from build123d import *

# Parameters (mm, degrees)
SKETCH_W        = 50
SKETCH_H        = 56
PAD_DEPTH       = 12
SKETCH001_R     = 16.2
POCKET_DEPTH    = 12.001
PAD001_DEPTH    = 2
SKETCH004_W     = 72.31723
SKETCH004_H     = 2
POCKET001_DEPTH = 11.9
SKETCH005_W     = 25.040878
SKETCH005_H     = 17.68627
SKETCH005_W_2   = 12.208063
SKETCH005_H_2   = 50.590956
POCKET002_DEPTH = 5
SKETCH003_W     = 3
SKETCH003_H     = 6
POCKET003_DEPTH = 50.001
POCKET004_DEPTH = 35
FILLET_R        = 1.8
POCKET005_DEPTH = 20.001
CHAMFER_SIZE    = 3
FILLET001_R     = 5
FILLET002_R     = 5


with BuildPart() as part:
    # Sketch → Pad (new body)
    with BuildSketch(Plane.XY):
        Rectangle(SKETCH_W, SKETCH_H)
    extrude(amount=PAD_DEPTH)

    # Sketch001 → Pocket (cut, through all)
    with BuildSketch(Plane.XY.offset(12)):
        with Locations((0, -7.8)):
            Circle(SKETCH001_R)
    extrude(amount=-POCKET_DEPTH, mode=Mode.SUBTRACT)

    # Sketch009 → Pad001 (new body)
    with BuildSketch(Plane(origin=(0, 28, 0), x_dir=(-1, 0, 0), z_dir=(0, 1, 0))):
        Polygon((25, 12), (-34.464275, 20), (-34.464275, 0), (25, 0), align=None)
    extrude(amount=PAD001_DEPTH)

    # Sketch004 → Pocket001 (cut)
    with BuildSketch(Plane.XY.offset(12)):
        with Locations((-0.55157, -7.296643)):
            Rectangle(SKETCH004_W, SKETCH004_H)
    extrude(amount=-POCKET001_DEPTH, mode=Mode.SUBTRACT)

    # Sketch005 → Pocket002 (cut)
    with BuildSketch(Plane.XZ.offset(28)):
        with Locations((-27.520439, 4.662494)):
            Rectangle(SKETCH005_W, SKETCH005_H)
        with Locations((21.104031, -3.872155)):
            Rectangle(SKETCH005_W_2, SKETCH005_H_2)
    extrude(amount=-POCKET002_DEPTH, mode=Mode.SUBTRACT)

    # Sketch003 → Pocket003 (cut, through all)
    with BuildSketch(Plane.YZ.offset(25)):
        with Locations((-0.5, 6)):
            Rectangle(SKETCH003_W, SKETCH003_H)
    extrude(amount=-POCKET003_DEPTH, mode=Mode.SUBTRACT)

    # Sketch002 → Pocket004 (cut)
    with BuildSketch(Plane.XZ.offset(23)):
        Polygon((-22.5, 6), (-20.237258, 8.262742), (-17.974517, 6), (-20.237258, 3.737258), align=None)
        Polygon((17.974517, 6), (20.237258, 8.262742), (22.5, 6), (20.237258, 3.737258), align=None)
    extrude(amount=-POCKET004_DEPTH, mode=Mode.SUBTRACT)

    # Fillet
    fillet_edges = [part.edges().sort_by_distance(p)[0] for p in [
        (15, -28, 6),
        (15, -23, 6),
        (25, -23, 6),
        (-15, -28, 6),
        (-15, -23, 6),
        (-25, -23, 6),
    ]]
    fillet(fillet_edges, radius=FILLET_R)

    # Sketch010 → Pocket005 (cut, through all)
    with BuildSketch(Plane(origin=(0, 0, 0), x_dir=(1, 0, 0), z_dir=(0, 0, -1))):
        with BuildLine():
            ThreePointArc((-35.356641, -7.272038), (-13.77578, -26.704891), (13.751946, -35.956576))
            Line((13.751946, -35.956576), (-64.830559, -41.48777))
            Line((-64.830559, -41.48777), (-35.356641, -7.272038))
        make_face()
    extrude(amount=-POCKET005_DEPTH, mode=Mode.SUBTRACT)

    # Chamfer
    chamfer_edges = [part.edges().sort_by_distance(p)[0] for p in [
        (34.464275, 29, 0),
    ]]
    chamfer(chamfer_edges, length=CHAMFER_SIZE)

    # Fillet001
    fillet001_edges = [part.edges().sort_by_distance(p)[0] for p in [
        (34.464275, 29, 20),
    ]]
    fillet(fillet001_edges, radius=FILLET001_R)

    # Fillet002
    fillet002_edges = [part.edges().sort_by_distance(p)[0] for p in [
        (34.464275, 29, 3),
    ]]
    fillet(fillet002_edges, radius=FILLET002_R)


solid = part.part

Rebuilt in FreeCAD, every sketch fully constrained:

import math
import FreeCAD as App
import Part
import Sketcher


def edges_at(feature, points):
    """Names of the edges that pass closest to the given points."""
    edges = feature.Shape.Edges
    near = lambda p: min(range(len(edges)), key=lambda i: edges[i].distToShape(Part.Vertex(*p))[0])
    return sorted({f"Edge{near(p) + 1}" for p in points})

doc = App.newDocument("Part")
body = doc.addObject("PartDesign::Body", "Body")

sketch1 = doc.addObject("Sketcher::SketchObject", "Sketch")
body.addObject(sketch1)
sketch1.AttachmentSupport = (doc.XY_Plane, [""])
sketch1.MapMode = "FlatFace"
sketch1.addGeometry([
    Part.LineSegment(App.Vector(-25, 28, 0), App.Vector(-25, -28, 0)),
    Part.LineSegment(App.Vector(-25, -28, 0), App.Vector(25, -28, 0)),
    Part.LineSegment(App.Vector(25, -28, 0), App.Vector(25, 28, 0)),
    Part.LineSegment(App.Vector(25, 28, 0), App.Vector(-25, 28, 0)),
], False)
sketch1.addConstraint([
    Sketcher.Constraint("Coincident", 0, 2, 1, 1),
    Sketcher.Constraint("Coincident", 1, 2, 2, 1),
    Sketcher.Constraint("Coincident", 2, 2, 3, 1),
    Sketcher.Constraint("Coincident", 3, 2, 0, 1),
    Sketcher.Constraint("Vertical", 0),
    Sketcher.Constraint("Horizontal", 1),
    Sketcher.Constraint("Vertical", 2),
    Sketcher.Constraint("Horizontal", 3),
    Sketcher.Constraint("Symmetric", 0, 2, 2, 2, -1, 1),
    Sketcher.Constraint("DistanceX", 1, 1, 1, 2, 50.0),
    Sketcher.Constraint("DistanceY", 0, 2, 0, 1, 56.0),
])
pad1 = doc.addObject("PartDesign::Pad", "Pad")
body.addObject(pad1)
pad1.Profile = sketch1
pad1.Length = 12

sketch2 = doc.addObject("Sketcher::SketchObject", "Sketch001")
body.addObject(sketch2)
sketch2.AttachmentSupport = (doc.XY_Plane, [""])
sketch2.MapMode = "FlatFace"
sketch2.AttachmentOffset = App.Placement(App.Vector(0, 0, 12), App.Rotation())
sketch2.addGeometry(Part.Circle(App.Vector(0, -8, 0), App.Vector(0, 0, 1), 16), False)
sketch2.addConstraint([
    Sketcher.Constraint("PointOnObject", 0, 3, -2),
    Sketcher.Constraint("Diameter", 0, 32.4),
    Sketcher.Constraint("DistanceY", 0, 3, -1, 1, 7.8),
])
pocket1 = doc.addObject("PartDesign::Pocket", "Pocket")
body.addObject(pocket1)
pocket1.Profile = sketch2
pocket1.Type = "ThroughAll"

sketch3 = doc.addObject("Sketcher::SketchObject", "Sketch002")
body.addObject(sketch3)
sketch3.AttachmentSupport = (doc.XZ_Plane, [""])
sketch3.MapMode = "FlatFace"
sketch3.AttachmentOffset = App.Placement(App.Vector(0, 0, -28), App.Rotation())
sketch3.addGeometry([
    Part.LineSegment(App.Vector(-25, 12, 0), App.Vector(34, 20, 0)),
    Part.LineSegment(App.Vector(34, 20, 0), App.Vector(34, 0, 0)),
    Part.LineSegment(App.Vector(34, 0, 0), App.Vector(-25, 0, 0)),
    Part.LineSegment(App.Vector(-25, 0, 0), App.Vector(-25, 12, 0)),
], False)
sketch3.addConstraint([
    Sketcher.Constraint("Coincident", 0, 2, 1, 1),
    Sketcher.Constraint("Coincident", 1, 2, 2, 1),
    Sketcher.Constraint("Coincident", 2, 2, 3, 1),
    Sketcher.Constraint("Coincident", 3, 2, 0, 1),
    Sketcher.Constraint("Vertical", 1),
    Sketcher.Constraint("Horizontal", 2),
    Sketcher.Constraint("Vertical", 3),
    Sketcher.Constraint("PointOnObject", 1, 2, -1),
    Sketcher.Constraint("DistanceY", 1, 2, 1, 1, 20.0),
    Sketcher.Constraint("DistanceY", 3, 1, 3, 2, 12.0),
    Sketcher.Constraint("Distance", 0, 60.0),
    Sketcher.Constraint("DistanceX", 2, 2, -1, 1, 25.0),
])
pad2 = doc.addObject("PartDesign::Pad", "Pad001")
body.addObject(pad2)
pad2.Profile = sketch3
pad2.Length = 2
pad2.Reversed = True

sketch4 = doc.addObject("Sketcher::SketchObject", "Sketch003")
body.addObject(sketch4)
sketch4.AttachmentSupport = (doc.XY_Plane, [""])
sketch4.MapMode = "FlatFace"
sketch4.AttachmentOffset = App.Placement(App.Vector(0, 0, 12), App.Rotation())
sketch4.addGeometry([
    Part.LineSegment(App.Vector(-36.7, -6.3, 0), App.Vector(-36.7, -8.3, 0)),
    Part.LineSegment(App.Vector(-36.7, -8.3, 0), App.Vector(35.6, -8.3, 0)),
    Part.LineSegment(App.Vector(35.6, -8.3, 0), App.Vector(35.6, -6.3, 0)),
    Part.LineSegment(App.Vector(35.6, -6.3, 0), App.Vector(-36.7, -6.3, 0)),
], False)
sketch4.addConstraint([
    Sketcher.Constraint("Coincident", 0, 2, 1, 1),
    Sketcher.Constraint("Coincident", 1, 2, 2, 1),
    Sketcher.Constraint("Coincident", 2, 2, 3, 1),
    Sketcher.Constraint("Coincident", 3, 2, 0, 1),
    Sketcher.Constraint("Vertical", 0),
    Sketcher.Constraint("Horizontal", 1),
    Sketcher.Constraint("Vertical", 2),
    Sketcher.Constraint("Horizontal", 3),
    Sketcher.Constraint("DistanceY", 0, 2, 0, 1, 2.0),
    Sketcher.Constraint("DistanceX", 1, 1, 1, 2, 72.31723),
    Sketcher.Constraint("DistanceX", 0, 2, -1, 1, 36.710185),
    Sketcher.Constraint("DistanceY", 0, 2, -1, 1, 8.296643),
])
pocket2 = doc.addObject("PartDesign::Pocket", "Pocket001")
body.addObject(pocket2)
pocket2.Profile = sketch4
pocket2.Length = 11.9

sketch5 = doc.addObject("Sketcher::SketchObject", "Sketch004")
body.addObject(sketch5)
sketch5.AttachmentSupport = (doc.XZ_Plane, [""])
sketch5.MapMode = "FlatFace"
sketch5.AttachmentOffset = App.Placement(App.Vector(0, 0, 28), App.Rotation())
sketch5.addGeometry([
    Part.LineSegment(App.Vector(-40, 14, 0), App.Vector(-40, -4, 0)),
    Part.LineSegment(App.Vector(-40, -4, 0), App.Vector(-15, -4, 0)),
    Part.LineSegment(App.Vector(-15, -4, 0), App.Vector(-15, 14, 0)),
    Part.LineSegment(App.Vector(-15, 14, 0), App.Vector(-40, 14, 0)),
    Part.LineSegment(App.Vector(15, 21, 0), App.Vector(15, -29, 0)),
    Part.LineSegment(App.Vector(15, -29, 0), App.Vector(27, -29, 0)),
    Part.LineSegment(App.Vector(27, -29, 0), App.Vector(27, 21, 0)),
    Part.LineSegment(App.Vector(27, 21, 0), App.Vector(15, 21, 0)),
], False)
sketch5.addConstraint([
    Sketcher.Constraint("Coincident", 0, 2, 1, 1),
    Sketcher.Constraint("Coincident", 1, 2, 2, 1),
    Sketcher.Constraint("Coincident", 2, 2, 3, 1),
    Sketcher.Constraint("Coincident", 3, 2, 0, 1),
    Sketcher.Constraint("Coincident", 4, 2, 5, 1),
    Sketcher.Constraint("Coincident", 5, 2, 6, 1),
    Sketcher.Constraint("Coincident", 6, 2, 7, 1),
    Sketcher.Constraint("Coincident", 7, 2, 4, 1),
    Sketcher.Constraint("Vertical", 0),
    Sketcher.Constraint("Horizontal", 1),
    Sketcher.Constraint("Vertical", 2),
    Sketcher.Constraint("Horizontal", 3),
    Sketcher.Constraint("Vertical", 4),
    Sketcher.Constraint("Horizontal", 5),
    Sketcher.Constraint("Vertical", 6),
    Sketcher.Constraint("Horizontal", 7),
    Sketcher.Constraint("DistanceX", 1, 2, -1, 1, 15.0),
    Sketcher.Constraint("DistanceX", -1, 1, 4, 2, 14.999999),
    Sketcher.Constraint("DistanceY", 0, 2, 0, 1, 17.68627),
    Sketcher.Constraint("DistanceX", 1, 1, 1, 2, 25.040878),
    Sketcher.Constraint("DistanceX", 5, 1, 5, 2, 12.208063),
    Sketcher.Constraint("DistanceY", 4, 2, 4, 1, 50.590956),
    Sketcher.Constraint("DistanceY", 0, 2, -1, 1, 4.180641),
    Sketcher.Constraint("DistanceY", 4, 2, -1, 1, 29.167633),
])
pocket3 = doc.addObject("PartDesign::Pocket", "Pocket002")
body.addObject(pocket3)
pocket3.Profile = sketch5
pocket3.Length = 5

sketch6 = doc.addObject("Sketcher::SketchObject", "Sketch005")
body.addObject(sketch6)
sketch6.AttachmentSupport = (doc.YZ_Plane, [""])
sketch6.MapMode = "FlatFace"
sketch6.AttachmentOffset = App.Placement(App.Vector(0, 0, 25), App.Rotation())
sketch6.addGeometry([
    Part.LineSegment(App.Vector(-2, 9, 0), App.Vector(-2, 3, 0)),
    Part.LineSegment(App.Vector(-2, 3, 0), App.Vector(1, 3, 0)),
    Part.LineSegment(App.Vector(1, 3, 0), App.Vector(1, 9, 0)),
    Part.LineSegment(App.Vector(1, 9, 0), App.Vector(-2, 9, 0)),
], False)
sketch6.addConstraint([
    Sketcher.Constraint("Coincident", 0, 2, 1, 1),
    Sketcher.Constraint("Coincident", 1, 2, 2, 1),
    Sketcher.Constraint("Coincident", 2, 2, 3, 1),
    Sketcher.Constraint("Coincident", 3, 2, 0, 1),
    Sketcher.Constraint("Vertical", 0),
    Sketcher.Constraint("Horizontal", 1),
    Sketcher.Constraint("Vertical", 2),
    Sketcher.Constraint("Horizontal", 3),
    Sketcher.Constraint("DistanceX", 1, 1, 1, 2, 3.0),
    Sketcher.Constraint("DistanceY", 0, 2, 0, 1, 6.0),
    Sketcher.Constraint("DistanceX", 0, 2, -1, 1, 2.0),
    Sketcher.Constraint("DistanceY", -1, 1, 0, 2, 3.0),
])
pocket4 = doc.addObject("PartDesign::Pocket", "Pocket003")
body.addObject(pocket4)
pocket4.Profile = sketch6
pocket4.Type = "ThroughAll"

sketch7 = doc.addObject("Sketcher::SketchObject", "Sketch006")
body.addObject(sketch7)
sketch7.AttachmentSupport = (doc.XZ_Plane, [""])
sketch7.MapMode = "FlatFace"
sketch7.AttachmentOffset = App.Placement(App.Vector(0, 0, 23), App.Rotation())
sketch7.addGeometry([
    Part.LineSegment(App.Vector(-20.2, 8.3, 0), App.Vector(-22.5, 6, 0)),
    Part.LineSegment(App.Vector(-22.5, 6, 0), App.Vector(-20.2, 3.7, 0)),
    Part.LineSegment(App.Vector(-20.2, 3.7, 0), App.Vector(-18, 6, 0)),
    Part.LineSegment(App.Vector(-18, 6, 0), App.Vector(-20.2, 8.3, 0)),
    Part.LineSegment(App.Vector(20.2, 8.3, 0), App.Vector(18, 6, 0)),
    Part.LineSegment(App.Vector(18, 6, 0), App.Vector(20.2, 3.7, 0)),
    Part.LineSegment(App.Vector(20.2, 3.7, 0), App.Vector(22.5, 6, 0)),
    Part.LineSegment(App.Vector(22.5, 6, 0), App.Vector(20.2, 8.3, 0)),
], False)
sketch7.addConstraint([
    Sketcher.Constraint("Coincident", 0, 2, 1, 1),
    Sketcher.Constraint("Coincident", 1, 2, 2, 1),
    Sketcher.Constraint("Coincident", 2, 2, 3, 1),
    Sketcher.Constraint("Coincident", 3, 2, 0, 1),
    Sketcher.Constraint("Coincident", 4, 2, 5, 1),
    Sketcher.Constraint("Coincident", 5, 2, 6, 1),
    Sketcher.Constraint("Coincident", 6, 2, 7, 1),
    Sketcher.Constraint("Coincident", 7, 2, 4, 1),
    Sketcher.Constraint("Symmetric", 2, 2, 4, 2, -2),
    Sketcher.Constraint("Symmetric", 1, 2, 5, 2, -2),
    Sketcher.Constraint("Symmetric", 0, 2, 6, 2, -2),
    Sketcher.Constraint("Symmetric", 3, 2, 7, 2, -2),
    Sketcher.Constraint("Perpendicular", 0, 1),
    Sketcher.Constraint("Perpendicular", 1, 2),
    Sketcher.Constraint("Perpendicular", 2, 3),
    Sketcher.Constraint("Perpendicular", 3, 4),
    Sketcher.Constraint("Horizontal", 0, 2, 2, 2),
    Sketcher.Constraint("DistanceY", -1, 1, 0, 2, 6.0),
    Sketcher.Constraint("Distance", 0, 3.2),
    Sketcher.Constraint("DistanceX", 0, 2, -1, 1, 22.5),
])
pocket5 = doc.addObject("PartDesign::Pocket", "Pocket004")
body.addObject(pocket5)
pocket5.Profile = sketch7
pocket5.Length = 35
doc.recompute()

fillet = doc.addObject("PartDesign::Fillet", "Fillet")
body.addObject(fillet)
fillet.Base = (pocket5, edges_at(pocket5, [
    (15, -28, 6),
    (15, -23, 6),
    (25, -23, 6),
    (-15, -28, 6),
    (-15, -23, 6),
    (-25, -23, 6),
]))
fillet.Radius = 1.8

sketch8 = doc.addObject("Sketcher::SketchObject", "Sketch007")
body.addObject(sketch8)
sketch8.AttachmentSupport = (doc.XY_Plane, [""])
sketch8.MapMode = "FlatFace"
sketch8.addGeometry([
    Part.ArcOfCircle(Part.Circle(App.Vector(22, -35, 0), App.Vector(0, 0, 1), 72), math.radians(97), math.radians(144)),
    Part.LineSegment(App.Vector(-35, 7, 0), App.Vector(-65, 41, 0)),
    Part.LineSegment(App.Vector(-65, 41, 0), App.Vector(14, 36, 0)),
], False)
sketch8.addConstraint([
    Sketcher.Constraint("Coincident", 0, 2, 1, 1),
    Sketcher.Constraint("Coincident", 1, 2, 2, 1),
    Sketcher.Constraint("Coincident", 2, 2, 0, 1),
    Sketcher.Constraint("Radius", 0, 71.528153),
    Sketcher.Constraint("Distance", 1, 45.160028),
    Sketcher.Constraint("DistanceX", 0, 2, -1, 1, 35.356641),
    Sketcher.Constraint("DistanceY", -1, 1, 0, 2, 7.272038),
    Sketcher.Constraint("DistanceX", 1, 2, -1, 1, 64.830559),
    Sketcher.Constraint("DistanceX", 0, 2, 0, 3, 57.657349),
    Sketcher.Constraint("DistanceX", 2, 2, 0, 3, 8.548762),
])
pocket6 = doc.addObject("PartDesign::Pocket", "Pocket005")
body.addObject(pocket6)
pocket6.Profile = sketch8
pocket6.Type = "ThroughAll"
pocket6.Reversed = True
doc.recompute()

chamfer = doc.addObject("PartDesign::Chamfer", "Chamfer")
body.addObject(chamfer)
chamfer.Base = (pocket6, edges_at(pocket6, [(34.464, 29, 0)]))
chamfer.Size = 3
doc.recompute()

fillet2 = doc.addObject("PartDesign::Fillet", "Fillet001")
body.addObject(fillet2)
fillet2.Base = (chamfer, edges_at(chamfer, [(34.464, 29, 20)]))
fillet2.Radius = 5
doc.recompute()

fillet3 = doc.addObject("PartDesign::Fillet", "Fillet002")
body.addObject(fillet3)
fillet3.Base = (fillet2, edges_at(fillet2, [(34.464, 29, 3)]))
fillet3.Radius = 5

doc.recompute()
